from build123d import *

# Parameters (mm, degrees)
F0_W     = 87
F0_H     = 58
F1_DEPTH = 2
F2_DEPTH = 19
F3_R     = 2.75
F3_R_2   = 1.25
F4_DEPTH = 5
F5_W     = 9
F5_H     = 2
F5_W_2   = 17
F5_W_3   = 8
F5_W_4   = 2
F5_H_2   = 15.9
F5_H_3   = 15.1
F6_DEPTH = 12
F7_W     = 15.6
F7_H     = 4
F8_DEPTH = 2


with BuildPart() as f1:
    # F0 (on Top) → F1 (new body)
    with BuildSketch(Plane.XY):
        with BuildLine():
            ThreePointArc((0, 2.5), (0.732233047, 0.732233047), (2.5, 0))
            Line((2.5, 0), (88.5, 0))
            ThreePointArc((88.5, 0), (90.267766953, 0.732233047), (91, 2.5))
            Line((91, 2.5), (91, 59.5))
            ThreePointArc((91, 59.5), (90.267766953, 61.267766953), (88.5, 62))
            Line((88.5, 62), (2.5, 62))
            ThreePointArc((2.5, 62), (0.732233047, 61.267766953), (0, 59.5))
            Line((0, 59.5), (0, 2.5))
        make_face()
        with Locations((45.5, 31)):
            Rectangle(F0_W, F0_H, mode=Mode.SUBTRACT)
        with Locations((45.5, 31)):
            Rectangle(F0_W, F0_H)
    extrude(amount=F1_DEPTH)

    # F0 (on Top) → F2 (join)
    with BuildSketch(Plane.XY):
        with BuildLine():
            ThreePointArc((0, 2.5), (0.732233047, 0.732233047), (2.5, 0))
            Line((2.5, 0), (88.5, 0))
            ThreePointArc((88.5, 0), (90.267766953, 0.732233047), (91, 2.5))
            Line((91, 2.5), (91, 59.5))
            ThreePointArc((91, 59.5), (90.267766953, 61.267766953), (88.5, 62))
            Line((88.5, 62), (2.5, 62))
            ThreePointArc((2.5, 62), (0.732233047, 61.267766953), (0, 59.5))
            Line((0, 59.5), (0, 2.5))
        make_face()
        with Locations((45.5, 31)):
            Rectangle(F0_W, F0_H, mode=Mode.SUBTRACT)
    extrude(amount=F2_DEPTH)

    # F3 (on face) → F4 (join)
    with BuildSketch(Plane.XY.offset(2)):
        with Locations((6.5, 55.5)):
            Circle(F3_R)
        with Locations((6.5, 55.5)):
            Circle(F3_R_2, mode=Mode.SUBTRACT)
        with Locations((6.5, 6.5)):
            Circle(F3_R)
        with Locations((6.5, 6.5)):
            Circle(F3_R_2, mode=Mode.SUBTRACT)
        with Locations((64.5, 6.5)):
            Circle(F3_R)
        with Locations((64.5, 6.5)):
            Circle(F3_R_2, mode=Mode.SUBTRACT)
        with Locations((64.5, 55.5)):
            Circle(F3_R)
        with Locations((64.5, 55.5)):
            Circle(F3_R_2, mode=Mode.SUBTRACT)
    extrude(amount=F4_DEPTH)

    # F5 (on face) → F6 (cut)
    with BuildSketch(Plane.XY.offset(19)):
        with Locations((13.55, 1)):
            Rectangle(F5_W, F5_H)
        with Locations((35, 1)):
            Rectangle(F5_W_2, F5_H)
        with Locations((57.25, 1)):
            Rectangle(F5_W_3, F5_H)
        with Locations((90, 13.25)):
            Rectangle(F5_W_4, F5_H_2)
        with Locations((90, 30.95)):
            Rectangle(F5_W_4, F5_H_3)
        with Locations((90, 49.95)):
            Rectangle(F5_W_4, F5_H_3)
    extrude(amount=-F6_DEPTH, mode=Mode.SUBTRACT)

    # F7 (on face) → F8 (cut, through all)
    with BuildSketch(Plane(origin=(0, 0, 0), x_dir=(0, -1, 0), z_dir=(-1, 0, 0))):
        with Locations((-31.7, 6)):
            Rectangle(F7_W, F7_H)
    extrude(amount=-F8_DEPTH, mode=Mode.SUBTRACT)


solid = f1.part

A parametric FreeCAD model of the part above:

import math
import FreeCAD as App
import Part
import Sketcher

V = App.Vector


def add_polygon(sketch, points):
    """Adds a closed chain of lines whose ends are joined by coincident constraints."""
    first, n = sketch.GeometryCount, len(points)
    for a, b in zip(points, points[1:] + points[:1]):
        sketch.addGeometry(Part.LineSegment(App.Vector(*a, 0), App.Vector(*b, 0)), False)
    for i in range(n):
        sketch.addConstraint(Sketcher.Constraint("Coincident", first + i, 2, first + (i + 1) % n, 1))

doc = App.newDocument("Part")
body = doc.addObject("PartDesign::Body", "Body")

# Sketch on XY plane
sketch1 = body.newObject("Sketcher::SketchObject", "Sketch")
sketch1.AttachmentSupport = (doc.getObject("XY_Plane"), [""])
sketch1.MapMode = "FlatFace"
sketch1.addGeometry(Part.ArcOfCircle(Part.Circle(V(2.5, 2.5, 0), V(0, 0, 1), 2.5), math.radians(180), math.radians(270)), False)
sketch1.addGeometry(Part.LineSegment(V(2.5, 0, 0), V(88.5, 0, 0)), False)
sketch1.addGeometry(Part.ArcOfCircle(Part.Circle(V(88.5, 2.5, 0), V(0, 0, 1), 2.5), math.radians(-90), math.radians(0)), False)
sketch1.addGeometry(Part.LineSegment(V(91, 2.5, 0), V(91, 59.5, 0)), False)
sketch1.addGeometry(Part.ArcOfCircle(Part.Circle(V(88.5, 59.5, 0), V(0, 0, 1), 2.5), math.radians(0), math.radians(90)), False)
sketch1.addGeometry(Part.LineSegment(V(88.5, 62, 0), V(2.5, 62, 0)), False)
sketch1.addGeometry(Part.ArcOfCircle(Part.Circle(V(2.5, 59.5, 0), V(0, 0, 1), 2.5), math.radians(90), math.radians(180)), False)
sketch1.addGeometry(Part.LineSegment(V(0, 59.5, 0), V(0, 2.5, 0)), False)
sketch1.addConstraint(Sketcher.Constraint("Tangent", 0, 2, 1, 1))
sketch1.addConstraint(Sketcher.Constraint("Tangent", 1, 2, 2, 1))
sketch1.addConstraint(Sketcher.Constraint("Tangent", 2, 2, 3, 1))
sketch1.addConstraint(Sketcher.Constraint("Tangent", 3, 2, 4, 1))
sketch1.addConstraint(Sketcher.Constraint("Tangent", 4, 2, 5, 1))
sketch1.addConstraint(Sketcher.Constraint("Tangent", 5, 2, 6, 1))
sketch1.addConstraint(Sketcher.Constraint("Tangent", 6, 2, 7, 1))
sketch1.addConstraint(Sketcher.Constraint("Tangent", 7, 2, 0, 1))
sketch1.addConstraint(Sketcher.Constraint("Horizontal", 1))
sketch1.addConstraint(Sketcher.Constraint("Vertical", 3))
sketch1.addConstraint(Sketcher.Constraint("Horizontal", 5))
sketch1.addConstraint(Sketcher.Constraint("Vertical", 7))
sketch1.addConstraint(Sketcher.Constraint("Equal", 0, 2))
sketch1.addConstraint(Sketcher.Constraint("Equal", 2, 4))
sketch1.addConstraint(Sketcher.Constraint("Equal", 4, 6))
sketch1.addConstraint(Sketcher.Constraint("PointOnObject", 0, 2, -1))
sketch1.addConstraint(Sketcher.Constraint("PointOnObject", 6, 2, -2))
sketch1.addConstraint(Sketcher.Constraint("Radius", 0, 2.5))
sketch1.addConstraint(Sketcher.Constraint("DistanceX", 1, 1, 1, 2, 86.0))
sketch1.addConstraint(Sketcher.Constraint("DistanceY", 3, 1, 3, 2, 57.0))
pad1 = body.newObject("PartDesign::Pad", "Pad")
pad1.Profile = sketch1
pad1.Length = 2

# Sketch on XY plane
sketch2 = body.newObject("Sketcher::SketchObject", "Sketch001")
sketch2.AttachmentSupport = (doc.getObject("XY_Plane"), [""])
sketch2.MapMode = "FlatFace"
sketch2.addGeometry(Part.ArcOfCircle(Part.Circle(V(2.5, 2.5, 0), V(0, 0, 1), 2.5), math.radians(180), math.radians(270)), False)  # 0
sketch2.addGeometry(Part.LineSegment(V(2.5, 0, 0), V(88.5, 0, 0)), False)  # 1
sketch2.addGeometry(Part.ArcOfCircle(Part.Circle(V(88.5, 2.5, 0), V(0, 0, 1), 2.5), math.radians(-90), math.radians(0)), False)  # 2
sketch2.addGeometry(Part.LineSegment(V(91, 2.5, 0), V(91, 59.5, 0)), False)  # 3
sketch2.addGeometry(Part.ArcOfCircle(Part.Circle(V(88.5, 59.5, 0), V(0, 0, 1), 2.5), math.radians(0), math.radians(90)), False)  # 4
sketch2.addGeometry(Part.LineSegment(V(88.5, 62, 0), V(2.5, 62, 0)), False)  # 5
sketch2.addGeometry(Part.ArcOfCircle(Part.Circle(V(2.5, 59.5, 0), V(0, 0, 1), 2.5), math.radians(90), math.radians(180)), False)  # 6
sketch2.addGeometry(Part.LineSegment(V(0, 59.5, 0), V(0, 2.5, 0)), False)  # 7
add_polygon(sketch2, [(89, 2), (2, 2), (2, 60), (89, 60)])  # lines 8-11
sketch2.addConstraint(Sketcher.Constraint("Tangent", 0, 2, 1, 1))
sketch2.addConstraint(Sketcher.Constraint("Tangent", 1, 2, 2, 1))
sketch2.addConstraint(Sketcher.Constraint("Tangent", 2, 2, 3, 1))
sketch2.addConstraint(Sketcher.Constraint("Tangent", 3, 2, 4, 1))
sketch2.addConstraint(Sketcher.Constraint("Tangent", 4, 2, 5, 1))
sketch2.addConstraint(Sketcher.Constraint("Tangent", 5, 2, 6, 1))
sketch2.addConstraint(Sketcher.Constraint("Tangent", 6, 2, 7, 1))
sketch2.addConstraint(Sketcher.Constraint("Tangent", 7, 2, 0, 1))
sketch2.addConstraint(Sketcher.Constraint("Horizontal", 1))
sketch2.addConstraint(Sketcher.Constraint("Vertical", 3))
sketch2.addConstraint(Sketcher.Constraint("Horizontal", 5))
sketch2.addConstraint(Sketcher.Constraint("Vertical", 7))
sketch2.addConstraint(Sketcher.Constraint("Horizontal", 8))
sketch2.addConstraint(Sketcher.Constraint("Vertical", 9))
sketch2.addConstraint(Sketcher.Constraint("Horizontal", 10))
sketch2.addConstraint(Sketcher.Constraint("Vertical", 11))
sketch2.addConstraint(Sketcher.Constraint("Equal", 0, 2))
sketch2.addConstraint(Sketcher.Constraint("Equal", 2, 4))
sketch2.addConstraint(Sketcher.Constraint("Equal", 4, 6))
sketch2.addConstraint(Sketcher.Constraint("PointOnObject", 0, 2, -1))
sketch2.addConstraint(Sketcher.Constraint("PointOnObject", 6, 2, -2))
sketch2.addConstraint(Sketcher.Constraint("Radius", 0, 2.5))
sketch2.addConstraint(Sketcher.Constraint("DistanceX", 1, 1, 1, 2, 86.0))
sketch2.addConstraint(Sketcher.Constraint("DistanceX", 8, 2, 8, 1, 87.0))
sketch2.addConstraint(Sketcher.Constraint("DistanceY", 3, 1, 3, 2, 57.0))
sketch2.addConstraint(Sketcher.Constraint("DistanceY", 9, 1, 9, 2, 58.0))
sketch2.addConstraint(Sketcher.Constraint("DistanceX", -1, 1, 8, 2, 2.0))
sketch2.addConstraint(Sketcher.Constraint("DistanceY", -1, 1, 8, 2, 2.0))
pad2 = body.newObject("PartDesign::Pad", "Pad001")
pad2.Profile = sketch2
pad2.Length = 19

# Sketch on XY plane
sketch3 = body.newObject("Sketcher::SketchObject", "Sketch002")
sketch3.AttachmentSupport = (doc.getObject("XY_Plane"), [""])
sketch3.MapMode = "FlatFace"
sketch3.AttachmentOffset = App.Placement(V(0, 0, 2), App.Rotation())
sketch3.addGeometry(Part.Circle(V(6.5, 55.5, 0), V(0, 0, 1), 2.75), False)
sketch3.addGeometry(Part.Circle(V(6.5, 55.5, 0), V(0, 0, 1), 1.25), False)
sketch3.addGeometry(Part.Circle(V(6.5, 6.5, 0), V(0, 0, 1), 2.75), False)
sketch3.addGeometry(Part.Circle(V(6.5, 6.5, 0), V(0, 0, 1), 1.25), False)
sketch3.addGeometry(Part.Circle(V(64.5, 6.5, 0), V(0, 0, 1), 2.75), False)
sketch3.addGeometry(Part.Circle(V(64.5, 6.5, 0), V(0, 0, 1), 1.25), False)
sketch3.addGeometry(Part.Circle(V(64.5, 55.5, 0), V(0, 0, 1), 2.75), False)
sketch3.addGeometry(Part.Circle(V(64.5, 55.5, 0), V(0, 0, 1), 1.25), False)
sketch3.addConstraint(Sketcher.Constraint("Coincident", 1, 3, 0, 3))
sketch3.addConstraint(Sketcher.Constraint("Coincident", 3, 3, 2, 3))
sketch3.addConstraint(Sketcher.Constraint("Coincident", 5, 3, 4, 3))
sketch3.addConstraint(Sketcher.Constraint("Coincident", 7, 3, 6, 3))
sketch3.addConstraint(Sketcher.Constraint("Equal", 0, 2))
sketch3.addConstraint(Sketcher.Constraint("Equal", 1, 3))
sketch3.addConstraint(Sketcher.Constraint("Equal", 2, 4))
sketch3.addConstraint(Sketcher.Constraint("Equal", 3, 5))
sketch3.addConstraint(Sketcher.Constraint("Equal", 4, 6))
sketch3.addConstraint(Sketcher.Constraint("Equal", 5, 7))
sketch3.addConstraint(Sketcher.Constraint("Horizontal", 3, 3, 4, 3))
sketch3.addConstraint(Sketcher.Constraint("Horizontal", 1, 3, 6, 3))
sketch3.addConstraint(Sketcher.Constraint("Vertical", 1, 3, 2, 3))
sketch3.addConstraint(Sketcher.Constraint("Vertical", 5, 3, 6, 3))
sketch3.addConstraint(Sketcher.Constraint("Diameter", 0, 5.5))
sketch3.addConstraint(Sketcher.Constraint("Diameter", 1, 2.5))
sketch3.addConstraint(Sketcher.Constraint("DistanceY", 2, 3, 0, 3, 49.0))
sketch3.addConstraint(Sketcher.Constraint("DistanceX", 2, 3, 4, 3, 58.0))
sketch3.addConstraint(Sketcher.Constraint("DistanceX", -1, 1, 0, 3, 6.5))
sketch3.addConstraint(Sketcher.Constraint("DistanceY", -1, 1, 0, 3, 55.5))
pad3 = body.newObject("PartDesign::Pad", "Pad002")
pad3.Profile = sketch3
pad3.Length = 5

# Sketch on XY plane
sketch4 = body.newObject("Sketcher::SketchObject", "Sketch003")
sketch4.AttachmentSupport = (doc.getObject("XY_Plane"), [""])
sketch4.MapMode = "FlatFace"
sketch4.AttachmentOffset = App.Placement(V(0, 0, 19), App.Rotation())
add_polygon(sketch4, [(9.05, 2), (9.05, 0), (18.05, 0), (18.05, 2)])  # lines 0-3
add_polygon(sketch4, [(26.5, 2), (26.5, 0), (43.5, 0), (43.5, 2)])  # lines 4-7
add_polygon(sketch4, [(53.25, 2), (53.25, 0), (61.25, 0), (61.25, 2)])  # lines 8-11
add_polygon(sketch4, [(89, 21.2), (89, 5.3), (91, 5.3), (91, 21.2)])  # lines 12-15
add_polygon(sketch4, [(89, 38.5), (89, 23.4), (91, 23.4), (91, 38.5)])  # lines 16-19
add_polygon(sketch4, [(89, 57.5), (89, 42.4), (91, 42.4), (91, 57.5)])  # lines 20-23
sketch4.addConstraint(Sketcher.Constraint("Vertical", 0))
sketch4.addConstraint(Sketcher.Constraint("Horizontal", 1))
sketch4.addConstraint(Sketcher.Constraint("Vertical", 2))
sketch4.addConstraint(Sketcher.Constraint("Horizontal", 3))
sketch4.addConstraint(Sketcher.Constraint("Vertical", 4))
sketch4.addConstraint(Sketcher.Constraint("Horizontal", 5))
sketch4.addConstraint(Sketcher.Constraint("Vertical", 6))
sketch4.addConstraint(Sketcher.Constraint("Horizontal", 7))
sketch4.addConstraint(Sketcher.Constraint("Vertical", 8))
sketch4.addConstraint(Sketcher.Constraint("Horizontal", 9))
sketch4.addConstraint(Sketcher.Constraint("Vertical", 10))
sketch4.addConstraint(Sketcher.Constraint("Horizontal", 11))
sketch4.addConstraint(Sketcher.Constraint("Vertical", 12))
sketch4.addConstraint(Sketcher.Constraint("Horizontal", 13))
sketch4.addConstraint(Sketcher.Constraint("Vertical", 14))
sketch4.addConstraint(Sketcher.Constraint("Horizontal", 15))
sketch4.addConstraint(Sketcher.Constraint("Vertical", 16))
sketch4.addConstraint(Sketcher.Constraint("Horizontal", 17))
sketch4.addConstraint(Sketcher.Constraint("Vertical", 18))
sketch4.addConstraint(Sketcher.Constraint("Horizontal", 19))
sketch4.addConstraint(Sketcher.Constraint("Vertical", 20))
sketch4.addConstraint(Sketcher.Constraint("Horizontal", 21))
sketch4.addConstraint(Sketcher.Constraint("Vertical", 22))
sketch4.addConstraint(Sketcher.Constraint("Horizontal", 23))
sketch4.addConstraint(Sketcher.Constraint("PointOnObject", 0, 2, -1))
sketch4.addConstraint(Sketcher.Constraint("PointOnObject", 4, 2, -1))
sketch4.addConstraint(Sketcher.Constraint("PointOnObject", 8, 2, -1))
sketch4.addConstraint(Sketcher.Constraint("Horizontal", 3, 2, 6, 2))
sketch4.addConstraint(Sketcher.Constraint("Horizontal", 7, 2, 10, 2))
sketch4.addConstraint(Sketcher.Constraint("Vertical", 15, 2, 16, 2))
sketch4.addConstraint(Sketcher.Constraint("Vertical", 14, 2, 17, 2))
sketch4.addConstraint(Sketcher.Constraint("Vertical", 19, 2, 20, 2))
sketch4.addConstraint(Sketcher.Constraint("Vertical", 18, 2, 21, 2))
sketch4.addConstraint(Sketcher.Constraint("Equal", 23, 0))
sketch4.addConstraint(Sketcher.Constraint("Equal", 18, 20))
sketch4.addConstraint(Sketcher.Constraint("DistanceX", 1, 1, 1, 2, 9.0))
sketch4.addConstraint(Sketcher.Constraint("DistanceX", 5, 1, 5, 2, 17.0))
sketch4.addConstraint(Sketcher.Constraint("DistanceX", 9, 1, 9, 2, 8.0))
sketch4.addConstraint(Sketcher.Constraint("DistanceX", 13, 1, 13, 2, 2.0))
sketch4.addConstraint(Sketcher.Constraint("DistanceY", 12, 2, 12, 1, 15.9))
sketch4.addConstraint(Sketcher.Constraint("DistanceY", 16, 2, 16, 1, 15.1))
sketch4.addConstraint(Sketcher.Constraint("DistanceX", -1, 1, 12, 2, 89.0))
sketch4.addConstraint(Sketcher.Constraint("DistanceY", 16, 2, 20, 2, 19.0))
sketch4.addConstraint(Sketcher.Constraint("DistanceX", -1, 1, 4, 2, 26.5))
sketch4.addConstraint(Sketcher.Constraint("DistanceY", -1, 1, 12, 2, 5.3))
sketch4.addConstraint(Sketcher.Constraint("DistanceY", -1, 1, 16, 2, 23.4))
sketch4.addConstraint(Sketcher.Constraint("DistanceX", 1, 2, 8, 2, 35.2))
sketch4.addConstraint(Sketcher.Constraint("DistanceX", -1, 1, 0, 2, 9.05))
pocket1 = body.newObject("PartDesign::Pocket", "Pocket")
pocket1.Profile = sketch4
pocket1.Length = 12

# Sketch on YZ plane
sketch5 = body.newObject("Sketcher::SketchObject", "Sketch004")
sketch5.AttachmentSupport = (doc.getObject("YZ_Plane"), [""])
sketch5.MapMode = "FlatFace"
add_polygon(sketch5, [(39.5, 8), (39.5, 4), (23.9, 4), (23.9, 8)])  # lines 0-3
sketch5.addConstraint(Sketcher.Constraint("Vertical", 0))
sketch5.addConstraint(Sketcher.Constraint("Horizontal", 1))
sketch5.addConstraint(Sketcher.Constraint("Vertical", 2))
sketch5.addConstraint(Sketcher.Constraint("Horizontal", 3))
sketch5.addConstraint(Sketcher.Constraint("DistanceY", 0, 2, 0, 1, 4.0))
sketch5.addConstraint(Sketcher.Constraint("DistanceX", 1, 2, 1, 1, 15.6))
sketch5.addConstraint(Sketcher.Constraint("DistanceY", -1, 1, 0, 2, 4.0))
sketch5.addConstraint(Sketcher.Constraint("DistanceX", -1, 1, 0, 2, 39.5))
pocket2 = body.newObject("PartDesign::Pocket", "Pocket001")
pocket2.Profile = sketch5
pocket2.Length = 2
pocket2.Reversed = True

doc.recompute()
